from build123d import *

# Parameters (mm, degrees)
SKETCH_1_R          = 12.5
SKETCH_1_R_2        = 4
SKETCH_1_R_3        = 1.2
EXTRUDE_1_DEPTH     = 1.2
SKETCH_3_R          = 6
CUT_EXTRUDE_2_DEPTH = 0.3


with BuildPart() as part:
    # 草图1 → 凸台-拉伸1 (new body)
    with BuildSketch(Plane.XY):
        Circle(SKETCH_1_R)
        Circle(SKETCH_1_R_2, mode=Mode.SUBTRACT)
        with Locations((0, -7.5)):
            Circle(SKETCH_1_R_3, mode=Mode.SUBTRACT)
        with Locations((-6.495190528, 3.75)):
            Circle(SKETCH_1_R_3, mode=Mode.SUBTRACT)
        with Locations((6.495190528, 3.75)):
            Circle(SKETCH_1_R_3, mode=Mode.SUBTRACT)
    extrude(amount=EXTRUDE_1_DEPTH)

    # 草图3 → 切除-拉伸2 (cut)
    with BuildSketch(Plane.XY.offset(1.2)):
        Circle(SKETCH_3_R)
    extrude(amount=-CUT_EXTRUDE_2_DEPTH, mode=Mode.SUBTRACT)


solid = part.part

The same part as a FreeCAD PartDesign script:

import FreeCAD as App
import Part
import Sketcher

V = App.Vector
Q = App.Units.Quantity

doc = App.newDocument("Part")
body = doc.addObject("PartDesign::Body", "Body")

# Sketch on XY plane
sketch1 = doc.addObject("Sketcher::SketchObject", "Sketch")
body.addObject(sketch1)
sketch1.AttachmentSupport = (doc.XY_Plane, [""])
sketch1.MapMode = "FlatFace"
sketch1.addGeometry([
    Part.Circle(V(0, 0, 0), V(0, 0, 1), 12.5),  # 0
    Part.Circle(V(0, -7.5, 0), V(0, 0, 1), 1.2),  # 1
    Part.Circle(V(0, 0, 0), V(0, 0, 1), 4),  # 2
    Part.Circle(V(-6.5, 3.8, 0), V(0, 0, 1), 1.2),  # 3
    Part.Circle(V(6.5, 3.8, 0), V(0, 0, 1), 1.2),  # 4
], False)
sketch1.addConstraint([
    Sketcher.Constraint("Coincident", 0, 3, -1, 1),
    Sketcher.Constraint("Coincident", 2, 3, -1, 1),
    Sketcher.Constraint("Equal", 1, 3),
    Sketcher.Constraint("Equal", 3, 4),
    Sketcher.Constraint("Symmetric", 3, 3, 4, 3, -2),
    Sketcher.Constraint("PointOnObject", 1, 3, -2),
    Sketcher.Constraint("Diameter", 0, Q("25 mm")),
    Sketcher.Constraint("Diameter", 2, Q("8 mm")),
    Sketcher.Constraint("Diameter", 1, Q("2.4 mm")),
    Sketcher.Constraint("DistanceY", 1, 3, -1, 1, Q("7.5 mm")),
    Sketcher.Constraint("DistanceY", -1, 1, 3, 3, Q("3.75 mm")),
    Sketcher.Constraint("DistanceX", 3, 3, -1, 1, Q("6.495191 mm")),
])
pad1 = doc.addObject("PartDesign::Pad", "Pad")
body.addObject(pad1)
pad1.Profile = sketch1
pad1.Length = 1.2

# Sketch on XY plane
sketch2 = doc.addObject("Sketcher::SketchObject", "Sketch001")
body.addObject(sketch2)
sketch2.AttachmentSupport = (doc.XY_Plane, [""])
sketch2.MapMode = "FlatFace"
sketch2.AttachmentOffset = App.Placement(V(0, 0, 1.2), App.Rotation())
sketch2.addGeometry(Part.Circle(V(0, 0, 0), V(0, 0, 1), 6), False)
sketch2.addConstraint([
    Sketcher.Constraint("Coincident", 0, 3, -1, 1),
    Sketcher.Constraint("Diameter", 0, Q("12 mm")),
])
pocket1 = doc.addObject("PartDesign::Pocket", "Pocket")
body.addObject(pocket1)
pocket1.Profile = sketch2
pocket1.Length = 0.3

doc.recompute()
